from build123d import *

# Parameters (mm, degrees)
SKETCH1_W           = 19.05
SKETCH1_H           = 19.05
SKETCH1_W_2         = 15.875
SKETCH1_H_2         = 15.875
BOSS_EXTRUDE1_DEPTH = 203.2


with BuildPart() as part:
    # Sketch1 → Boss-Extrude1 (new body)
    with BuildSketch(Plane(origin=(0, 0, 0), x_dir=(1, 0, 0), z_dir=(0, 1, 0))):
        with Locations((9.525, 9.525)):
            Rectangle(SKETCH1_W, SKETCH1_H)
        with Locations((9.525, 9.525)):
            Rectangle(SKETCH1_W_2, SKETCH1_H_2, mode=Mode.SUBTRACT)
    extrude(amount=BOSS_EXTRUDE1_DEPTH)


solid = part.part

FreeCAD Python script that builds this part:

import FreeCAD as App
import Part
import Sketcher
from FreeCAD import Vector
Q = App.Units.Quantity

doc = App.newDocument("Part")
params = doc.addObject("Spreadsheet::Sheet", "Params")
for row, (alias, value) in enumerate([
    ("sketch1_width", "0.75 in"),
    ("sketch1_width2", "0.625 in"),
    ("pad1_length", "8 in"),
], start=1):
    params.set(f"A{row}", alias)
    params.set(f"B{row}", "=" + value)
    params.setAlias(f"B{row}", alias)

body = doc.addObject("PartDesign::Body", "Body")

sketch1 = body.newObject("Sketcher::SketchObject", "Sketch")
sketch1.AttachmentSupport = (doc.getObject("XZ_Plane"), [""])
sketch1.MapMode = "FlatFace"
sketch1.addGeometry([
    Part.LineSegment(Vector(0, -19.05, 0), Vector(0, 0, 0)),
    Part.LineSegment(Vector(0, 0, 0), Vector(19.05, 0, 0)),
    Part.LineSegment(Vector(19.05, 0, 0), Vector(19.05, -19.05, 0)),
    Part.LineSegment(Vector(19.05, -19.05, 0), Vector(0, -19.05, 0)),
    Part.LineSegment(Vector(17.4625, -1.5875, 0), Vector(1.5875, -1.5875, 0)),
    Part.LineSegment(Vector(1.5875, -1.5875, 0), Vector(1.5875, -17.4625, 0)),
    Part.LineSegment(Vector(1.5875, -17.4625, 0), Vector(17.4625, -17.4625, 0)),
    Part.LineSegment(Vector(17.4625, -17.4625, 0), Vector(17.4625, -1.5875, 0)),
], False)
sketch1.addConstraint([
    Sketcher.Constraint("Coincident", 0, 2, 1, 1),
    Sketcher.Constraint("Coincident", 1, 2, 2, 1),
    Sketcher.Constraint("Coincident", 2, 2, 3, 1),
    Sketcher.Constraint("Coincident", 3, 2, 0, 1),
    Sketcher.Constraint("Coincident", 4, 2, 5, 1),
    Sketcher.Constraint("Coincident", 5, 2, 6, 1),
    Sketcher.Constraint("Coincident", 6, 2, 7, 1),
    Sketcher.Constraint("Coincident", 7, 2, 4, 1),
    Sketcher.Constraint("Vertical", 0),
    Sketcher.Constraint("Horizontal", 1),
    Sketcher.Constraint("Vertical", 2),
    Sketcher.Constraint("Horizontal", 3),
    Sketcher.Constraint("Horizontal", 4),
    Sketcher.Constraint("Vertical", 5),
    Sketcher.Constraint("Horizontal", 6),
    Sketcher.Constraint("Vertical", 7),
    Sketcher.Constraint("Coincident", 0, 2, -1, 1),
    Sketcher.Constraint("Equal", 3, 0),
    Sketcher.Constraint("Equal", 6, 5),
    Sketcher.Constraint("DistanceX", 1, 1, 1, 2, Q("0.75 in")),
    Sketcher.Constraint("DistanceX", 4, 2, 4, 1, Q("0.625 in")),
    Sketcher.Constraint("DistanceX", -1, 1, 4, 2, Q("0.0625 in")),
    Sketcher.Constraint("DistanceY", 4, 2, -1, 1, Q("0.0625 in")),
])
sketch1.setExpression("Constraints[19]", "Params.sketch1_width")
sketch1.setExpression("Constraints[20]", "Params.sketch1_width2")
pad1 = body.newObject("PartDesign::Pad", "Pad")
pad1.Profile = sketch1
pad1.setExpression("Length", "Params.pad1_length")
pad1.Reversed = True

doc.recompute()
